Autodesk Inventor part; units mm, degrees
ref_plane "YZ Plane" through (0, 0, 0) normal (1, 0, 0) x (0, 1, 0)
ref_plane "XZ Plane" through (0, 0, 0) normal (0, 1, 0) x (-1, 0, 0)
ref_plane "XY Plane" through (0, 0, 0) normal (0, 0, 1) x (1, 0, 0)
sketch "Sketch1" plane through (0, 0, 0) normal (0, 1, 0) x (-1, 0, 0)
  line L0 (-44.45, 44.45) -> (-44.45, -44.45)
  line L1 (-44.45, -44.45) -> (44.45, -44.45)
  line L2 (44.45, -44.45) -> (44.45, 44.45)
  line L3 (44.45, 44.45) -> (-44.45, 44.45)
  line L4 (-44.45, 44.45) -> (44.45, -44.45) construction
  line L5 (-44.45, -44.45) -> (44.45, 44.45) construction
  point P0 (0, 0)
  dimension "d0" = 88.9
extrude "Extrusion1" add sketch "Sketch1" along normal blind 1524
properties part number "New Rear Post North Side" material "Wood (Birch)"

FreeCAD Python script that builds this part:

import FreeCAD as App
import Part
import Sketcher
Q = App.Units.Quantity


def add_polygon(sketch, points):
    """Adds a closed chain of lines whose ends are joined by coincident constraints."""
    first, n = sketch.GeometryCount, len(points)
    for a, b in zip(points, points[1:] + points[:1]):
        sketch.addGeometry(Part.LineSegment(App.Vector(*a, 0), App.Vector(*b, 0)), False)
    for i in range(n):
        sketch.addConstraint(Sketcher.Constraint("Coincident", first + i, 2, first + (i + 1) % n, 1))

doc = App.newDocument("Part")
body = doc.addObject("PartDesign::Body", "Body")

# Sketch on XZ plane
sketch1 = body.newObject("Sketcher::SketchObject", "Sketch")
sketch1.AttachmentSupport = (doc.getObject("XZ_Plane"), [""])
sketch1.MapMode = "FlatFace"
add_polygon(sketch1, [(-44, 44), (44, 44), (44, -44), (-44, -44)])  # lines 0-3
sketch1.addConstraint([
    Sketcher.Constraint("Horizontal", 0),
    Sketcher.Constraint("Vertical", 1),
    Sketcher.Constraint("Horizontal", 2),
    Sketcher.Constraint("Vertical", 3),
    Sketcher.Constraint("Symmetric", 0, 2, 2, 2, -1, 1),
    Sketcher.Constraint("Equal", 2, 1),
    Sketcher.Constraint("DistanceX", 0, 1, 0, 2, Q("3.5 in")),
])
pad1 = body.newObject("PartDesign::Pad", "Pad")
pad1.Profile = sketch1
pad1.Length = Q("60 in")
pad1.Reversed = True

doc.recompute()
